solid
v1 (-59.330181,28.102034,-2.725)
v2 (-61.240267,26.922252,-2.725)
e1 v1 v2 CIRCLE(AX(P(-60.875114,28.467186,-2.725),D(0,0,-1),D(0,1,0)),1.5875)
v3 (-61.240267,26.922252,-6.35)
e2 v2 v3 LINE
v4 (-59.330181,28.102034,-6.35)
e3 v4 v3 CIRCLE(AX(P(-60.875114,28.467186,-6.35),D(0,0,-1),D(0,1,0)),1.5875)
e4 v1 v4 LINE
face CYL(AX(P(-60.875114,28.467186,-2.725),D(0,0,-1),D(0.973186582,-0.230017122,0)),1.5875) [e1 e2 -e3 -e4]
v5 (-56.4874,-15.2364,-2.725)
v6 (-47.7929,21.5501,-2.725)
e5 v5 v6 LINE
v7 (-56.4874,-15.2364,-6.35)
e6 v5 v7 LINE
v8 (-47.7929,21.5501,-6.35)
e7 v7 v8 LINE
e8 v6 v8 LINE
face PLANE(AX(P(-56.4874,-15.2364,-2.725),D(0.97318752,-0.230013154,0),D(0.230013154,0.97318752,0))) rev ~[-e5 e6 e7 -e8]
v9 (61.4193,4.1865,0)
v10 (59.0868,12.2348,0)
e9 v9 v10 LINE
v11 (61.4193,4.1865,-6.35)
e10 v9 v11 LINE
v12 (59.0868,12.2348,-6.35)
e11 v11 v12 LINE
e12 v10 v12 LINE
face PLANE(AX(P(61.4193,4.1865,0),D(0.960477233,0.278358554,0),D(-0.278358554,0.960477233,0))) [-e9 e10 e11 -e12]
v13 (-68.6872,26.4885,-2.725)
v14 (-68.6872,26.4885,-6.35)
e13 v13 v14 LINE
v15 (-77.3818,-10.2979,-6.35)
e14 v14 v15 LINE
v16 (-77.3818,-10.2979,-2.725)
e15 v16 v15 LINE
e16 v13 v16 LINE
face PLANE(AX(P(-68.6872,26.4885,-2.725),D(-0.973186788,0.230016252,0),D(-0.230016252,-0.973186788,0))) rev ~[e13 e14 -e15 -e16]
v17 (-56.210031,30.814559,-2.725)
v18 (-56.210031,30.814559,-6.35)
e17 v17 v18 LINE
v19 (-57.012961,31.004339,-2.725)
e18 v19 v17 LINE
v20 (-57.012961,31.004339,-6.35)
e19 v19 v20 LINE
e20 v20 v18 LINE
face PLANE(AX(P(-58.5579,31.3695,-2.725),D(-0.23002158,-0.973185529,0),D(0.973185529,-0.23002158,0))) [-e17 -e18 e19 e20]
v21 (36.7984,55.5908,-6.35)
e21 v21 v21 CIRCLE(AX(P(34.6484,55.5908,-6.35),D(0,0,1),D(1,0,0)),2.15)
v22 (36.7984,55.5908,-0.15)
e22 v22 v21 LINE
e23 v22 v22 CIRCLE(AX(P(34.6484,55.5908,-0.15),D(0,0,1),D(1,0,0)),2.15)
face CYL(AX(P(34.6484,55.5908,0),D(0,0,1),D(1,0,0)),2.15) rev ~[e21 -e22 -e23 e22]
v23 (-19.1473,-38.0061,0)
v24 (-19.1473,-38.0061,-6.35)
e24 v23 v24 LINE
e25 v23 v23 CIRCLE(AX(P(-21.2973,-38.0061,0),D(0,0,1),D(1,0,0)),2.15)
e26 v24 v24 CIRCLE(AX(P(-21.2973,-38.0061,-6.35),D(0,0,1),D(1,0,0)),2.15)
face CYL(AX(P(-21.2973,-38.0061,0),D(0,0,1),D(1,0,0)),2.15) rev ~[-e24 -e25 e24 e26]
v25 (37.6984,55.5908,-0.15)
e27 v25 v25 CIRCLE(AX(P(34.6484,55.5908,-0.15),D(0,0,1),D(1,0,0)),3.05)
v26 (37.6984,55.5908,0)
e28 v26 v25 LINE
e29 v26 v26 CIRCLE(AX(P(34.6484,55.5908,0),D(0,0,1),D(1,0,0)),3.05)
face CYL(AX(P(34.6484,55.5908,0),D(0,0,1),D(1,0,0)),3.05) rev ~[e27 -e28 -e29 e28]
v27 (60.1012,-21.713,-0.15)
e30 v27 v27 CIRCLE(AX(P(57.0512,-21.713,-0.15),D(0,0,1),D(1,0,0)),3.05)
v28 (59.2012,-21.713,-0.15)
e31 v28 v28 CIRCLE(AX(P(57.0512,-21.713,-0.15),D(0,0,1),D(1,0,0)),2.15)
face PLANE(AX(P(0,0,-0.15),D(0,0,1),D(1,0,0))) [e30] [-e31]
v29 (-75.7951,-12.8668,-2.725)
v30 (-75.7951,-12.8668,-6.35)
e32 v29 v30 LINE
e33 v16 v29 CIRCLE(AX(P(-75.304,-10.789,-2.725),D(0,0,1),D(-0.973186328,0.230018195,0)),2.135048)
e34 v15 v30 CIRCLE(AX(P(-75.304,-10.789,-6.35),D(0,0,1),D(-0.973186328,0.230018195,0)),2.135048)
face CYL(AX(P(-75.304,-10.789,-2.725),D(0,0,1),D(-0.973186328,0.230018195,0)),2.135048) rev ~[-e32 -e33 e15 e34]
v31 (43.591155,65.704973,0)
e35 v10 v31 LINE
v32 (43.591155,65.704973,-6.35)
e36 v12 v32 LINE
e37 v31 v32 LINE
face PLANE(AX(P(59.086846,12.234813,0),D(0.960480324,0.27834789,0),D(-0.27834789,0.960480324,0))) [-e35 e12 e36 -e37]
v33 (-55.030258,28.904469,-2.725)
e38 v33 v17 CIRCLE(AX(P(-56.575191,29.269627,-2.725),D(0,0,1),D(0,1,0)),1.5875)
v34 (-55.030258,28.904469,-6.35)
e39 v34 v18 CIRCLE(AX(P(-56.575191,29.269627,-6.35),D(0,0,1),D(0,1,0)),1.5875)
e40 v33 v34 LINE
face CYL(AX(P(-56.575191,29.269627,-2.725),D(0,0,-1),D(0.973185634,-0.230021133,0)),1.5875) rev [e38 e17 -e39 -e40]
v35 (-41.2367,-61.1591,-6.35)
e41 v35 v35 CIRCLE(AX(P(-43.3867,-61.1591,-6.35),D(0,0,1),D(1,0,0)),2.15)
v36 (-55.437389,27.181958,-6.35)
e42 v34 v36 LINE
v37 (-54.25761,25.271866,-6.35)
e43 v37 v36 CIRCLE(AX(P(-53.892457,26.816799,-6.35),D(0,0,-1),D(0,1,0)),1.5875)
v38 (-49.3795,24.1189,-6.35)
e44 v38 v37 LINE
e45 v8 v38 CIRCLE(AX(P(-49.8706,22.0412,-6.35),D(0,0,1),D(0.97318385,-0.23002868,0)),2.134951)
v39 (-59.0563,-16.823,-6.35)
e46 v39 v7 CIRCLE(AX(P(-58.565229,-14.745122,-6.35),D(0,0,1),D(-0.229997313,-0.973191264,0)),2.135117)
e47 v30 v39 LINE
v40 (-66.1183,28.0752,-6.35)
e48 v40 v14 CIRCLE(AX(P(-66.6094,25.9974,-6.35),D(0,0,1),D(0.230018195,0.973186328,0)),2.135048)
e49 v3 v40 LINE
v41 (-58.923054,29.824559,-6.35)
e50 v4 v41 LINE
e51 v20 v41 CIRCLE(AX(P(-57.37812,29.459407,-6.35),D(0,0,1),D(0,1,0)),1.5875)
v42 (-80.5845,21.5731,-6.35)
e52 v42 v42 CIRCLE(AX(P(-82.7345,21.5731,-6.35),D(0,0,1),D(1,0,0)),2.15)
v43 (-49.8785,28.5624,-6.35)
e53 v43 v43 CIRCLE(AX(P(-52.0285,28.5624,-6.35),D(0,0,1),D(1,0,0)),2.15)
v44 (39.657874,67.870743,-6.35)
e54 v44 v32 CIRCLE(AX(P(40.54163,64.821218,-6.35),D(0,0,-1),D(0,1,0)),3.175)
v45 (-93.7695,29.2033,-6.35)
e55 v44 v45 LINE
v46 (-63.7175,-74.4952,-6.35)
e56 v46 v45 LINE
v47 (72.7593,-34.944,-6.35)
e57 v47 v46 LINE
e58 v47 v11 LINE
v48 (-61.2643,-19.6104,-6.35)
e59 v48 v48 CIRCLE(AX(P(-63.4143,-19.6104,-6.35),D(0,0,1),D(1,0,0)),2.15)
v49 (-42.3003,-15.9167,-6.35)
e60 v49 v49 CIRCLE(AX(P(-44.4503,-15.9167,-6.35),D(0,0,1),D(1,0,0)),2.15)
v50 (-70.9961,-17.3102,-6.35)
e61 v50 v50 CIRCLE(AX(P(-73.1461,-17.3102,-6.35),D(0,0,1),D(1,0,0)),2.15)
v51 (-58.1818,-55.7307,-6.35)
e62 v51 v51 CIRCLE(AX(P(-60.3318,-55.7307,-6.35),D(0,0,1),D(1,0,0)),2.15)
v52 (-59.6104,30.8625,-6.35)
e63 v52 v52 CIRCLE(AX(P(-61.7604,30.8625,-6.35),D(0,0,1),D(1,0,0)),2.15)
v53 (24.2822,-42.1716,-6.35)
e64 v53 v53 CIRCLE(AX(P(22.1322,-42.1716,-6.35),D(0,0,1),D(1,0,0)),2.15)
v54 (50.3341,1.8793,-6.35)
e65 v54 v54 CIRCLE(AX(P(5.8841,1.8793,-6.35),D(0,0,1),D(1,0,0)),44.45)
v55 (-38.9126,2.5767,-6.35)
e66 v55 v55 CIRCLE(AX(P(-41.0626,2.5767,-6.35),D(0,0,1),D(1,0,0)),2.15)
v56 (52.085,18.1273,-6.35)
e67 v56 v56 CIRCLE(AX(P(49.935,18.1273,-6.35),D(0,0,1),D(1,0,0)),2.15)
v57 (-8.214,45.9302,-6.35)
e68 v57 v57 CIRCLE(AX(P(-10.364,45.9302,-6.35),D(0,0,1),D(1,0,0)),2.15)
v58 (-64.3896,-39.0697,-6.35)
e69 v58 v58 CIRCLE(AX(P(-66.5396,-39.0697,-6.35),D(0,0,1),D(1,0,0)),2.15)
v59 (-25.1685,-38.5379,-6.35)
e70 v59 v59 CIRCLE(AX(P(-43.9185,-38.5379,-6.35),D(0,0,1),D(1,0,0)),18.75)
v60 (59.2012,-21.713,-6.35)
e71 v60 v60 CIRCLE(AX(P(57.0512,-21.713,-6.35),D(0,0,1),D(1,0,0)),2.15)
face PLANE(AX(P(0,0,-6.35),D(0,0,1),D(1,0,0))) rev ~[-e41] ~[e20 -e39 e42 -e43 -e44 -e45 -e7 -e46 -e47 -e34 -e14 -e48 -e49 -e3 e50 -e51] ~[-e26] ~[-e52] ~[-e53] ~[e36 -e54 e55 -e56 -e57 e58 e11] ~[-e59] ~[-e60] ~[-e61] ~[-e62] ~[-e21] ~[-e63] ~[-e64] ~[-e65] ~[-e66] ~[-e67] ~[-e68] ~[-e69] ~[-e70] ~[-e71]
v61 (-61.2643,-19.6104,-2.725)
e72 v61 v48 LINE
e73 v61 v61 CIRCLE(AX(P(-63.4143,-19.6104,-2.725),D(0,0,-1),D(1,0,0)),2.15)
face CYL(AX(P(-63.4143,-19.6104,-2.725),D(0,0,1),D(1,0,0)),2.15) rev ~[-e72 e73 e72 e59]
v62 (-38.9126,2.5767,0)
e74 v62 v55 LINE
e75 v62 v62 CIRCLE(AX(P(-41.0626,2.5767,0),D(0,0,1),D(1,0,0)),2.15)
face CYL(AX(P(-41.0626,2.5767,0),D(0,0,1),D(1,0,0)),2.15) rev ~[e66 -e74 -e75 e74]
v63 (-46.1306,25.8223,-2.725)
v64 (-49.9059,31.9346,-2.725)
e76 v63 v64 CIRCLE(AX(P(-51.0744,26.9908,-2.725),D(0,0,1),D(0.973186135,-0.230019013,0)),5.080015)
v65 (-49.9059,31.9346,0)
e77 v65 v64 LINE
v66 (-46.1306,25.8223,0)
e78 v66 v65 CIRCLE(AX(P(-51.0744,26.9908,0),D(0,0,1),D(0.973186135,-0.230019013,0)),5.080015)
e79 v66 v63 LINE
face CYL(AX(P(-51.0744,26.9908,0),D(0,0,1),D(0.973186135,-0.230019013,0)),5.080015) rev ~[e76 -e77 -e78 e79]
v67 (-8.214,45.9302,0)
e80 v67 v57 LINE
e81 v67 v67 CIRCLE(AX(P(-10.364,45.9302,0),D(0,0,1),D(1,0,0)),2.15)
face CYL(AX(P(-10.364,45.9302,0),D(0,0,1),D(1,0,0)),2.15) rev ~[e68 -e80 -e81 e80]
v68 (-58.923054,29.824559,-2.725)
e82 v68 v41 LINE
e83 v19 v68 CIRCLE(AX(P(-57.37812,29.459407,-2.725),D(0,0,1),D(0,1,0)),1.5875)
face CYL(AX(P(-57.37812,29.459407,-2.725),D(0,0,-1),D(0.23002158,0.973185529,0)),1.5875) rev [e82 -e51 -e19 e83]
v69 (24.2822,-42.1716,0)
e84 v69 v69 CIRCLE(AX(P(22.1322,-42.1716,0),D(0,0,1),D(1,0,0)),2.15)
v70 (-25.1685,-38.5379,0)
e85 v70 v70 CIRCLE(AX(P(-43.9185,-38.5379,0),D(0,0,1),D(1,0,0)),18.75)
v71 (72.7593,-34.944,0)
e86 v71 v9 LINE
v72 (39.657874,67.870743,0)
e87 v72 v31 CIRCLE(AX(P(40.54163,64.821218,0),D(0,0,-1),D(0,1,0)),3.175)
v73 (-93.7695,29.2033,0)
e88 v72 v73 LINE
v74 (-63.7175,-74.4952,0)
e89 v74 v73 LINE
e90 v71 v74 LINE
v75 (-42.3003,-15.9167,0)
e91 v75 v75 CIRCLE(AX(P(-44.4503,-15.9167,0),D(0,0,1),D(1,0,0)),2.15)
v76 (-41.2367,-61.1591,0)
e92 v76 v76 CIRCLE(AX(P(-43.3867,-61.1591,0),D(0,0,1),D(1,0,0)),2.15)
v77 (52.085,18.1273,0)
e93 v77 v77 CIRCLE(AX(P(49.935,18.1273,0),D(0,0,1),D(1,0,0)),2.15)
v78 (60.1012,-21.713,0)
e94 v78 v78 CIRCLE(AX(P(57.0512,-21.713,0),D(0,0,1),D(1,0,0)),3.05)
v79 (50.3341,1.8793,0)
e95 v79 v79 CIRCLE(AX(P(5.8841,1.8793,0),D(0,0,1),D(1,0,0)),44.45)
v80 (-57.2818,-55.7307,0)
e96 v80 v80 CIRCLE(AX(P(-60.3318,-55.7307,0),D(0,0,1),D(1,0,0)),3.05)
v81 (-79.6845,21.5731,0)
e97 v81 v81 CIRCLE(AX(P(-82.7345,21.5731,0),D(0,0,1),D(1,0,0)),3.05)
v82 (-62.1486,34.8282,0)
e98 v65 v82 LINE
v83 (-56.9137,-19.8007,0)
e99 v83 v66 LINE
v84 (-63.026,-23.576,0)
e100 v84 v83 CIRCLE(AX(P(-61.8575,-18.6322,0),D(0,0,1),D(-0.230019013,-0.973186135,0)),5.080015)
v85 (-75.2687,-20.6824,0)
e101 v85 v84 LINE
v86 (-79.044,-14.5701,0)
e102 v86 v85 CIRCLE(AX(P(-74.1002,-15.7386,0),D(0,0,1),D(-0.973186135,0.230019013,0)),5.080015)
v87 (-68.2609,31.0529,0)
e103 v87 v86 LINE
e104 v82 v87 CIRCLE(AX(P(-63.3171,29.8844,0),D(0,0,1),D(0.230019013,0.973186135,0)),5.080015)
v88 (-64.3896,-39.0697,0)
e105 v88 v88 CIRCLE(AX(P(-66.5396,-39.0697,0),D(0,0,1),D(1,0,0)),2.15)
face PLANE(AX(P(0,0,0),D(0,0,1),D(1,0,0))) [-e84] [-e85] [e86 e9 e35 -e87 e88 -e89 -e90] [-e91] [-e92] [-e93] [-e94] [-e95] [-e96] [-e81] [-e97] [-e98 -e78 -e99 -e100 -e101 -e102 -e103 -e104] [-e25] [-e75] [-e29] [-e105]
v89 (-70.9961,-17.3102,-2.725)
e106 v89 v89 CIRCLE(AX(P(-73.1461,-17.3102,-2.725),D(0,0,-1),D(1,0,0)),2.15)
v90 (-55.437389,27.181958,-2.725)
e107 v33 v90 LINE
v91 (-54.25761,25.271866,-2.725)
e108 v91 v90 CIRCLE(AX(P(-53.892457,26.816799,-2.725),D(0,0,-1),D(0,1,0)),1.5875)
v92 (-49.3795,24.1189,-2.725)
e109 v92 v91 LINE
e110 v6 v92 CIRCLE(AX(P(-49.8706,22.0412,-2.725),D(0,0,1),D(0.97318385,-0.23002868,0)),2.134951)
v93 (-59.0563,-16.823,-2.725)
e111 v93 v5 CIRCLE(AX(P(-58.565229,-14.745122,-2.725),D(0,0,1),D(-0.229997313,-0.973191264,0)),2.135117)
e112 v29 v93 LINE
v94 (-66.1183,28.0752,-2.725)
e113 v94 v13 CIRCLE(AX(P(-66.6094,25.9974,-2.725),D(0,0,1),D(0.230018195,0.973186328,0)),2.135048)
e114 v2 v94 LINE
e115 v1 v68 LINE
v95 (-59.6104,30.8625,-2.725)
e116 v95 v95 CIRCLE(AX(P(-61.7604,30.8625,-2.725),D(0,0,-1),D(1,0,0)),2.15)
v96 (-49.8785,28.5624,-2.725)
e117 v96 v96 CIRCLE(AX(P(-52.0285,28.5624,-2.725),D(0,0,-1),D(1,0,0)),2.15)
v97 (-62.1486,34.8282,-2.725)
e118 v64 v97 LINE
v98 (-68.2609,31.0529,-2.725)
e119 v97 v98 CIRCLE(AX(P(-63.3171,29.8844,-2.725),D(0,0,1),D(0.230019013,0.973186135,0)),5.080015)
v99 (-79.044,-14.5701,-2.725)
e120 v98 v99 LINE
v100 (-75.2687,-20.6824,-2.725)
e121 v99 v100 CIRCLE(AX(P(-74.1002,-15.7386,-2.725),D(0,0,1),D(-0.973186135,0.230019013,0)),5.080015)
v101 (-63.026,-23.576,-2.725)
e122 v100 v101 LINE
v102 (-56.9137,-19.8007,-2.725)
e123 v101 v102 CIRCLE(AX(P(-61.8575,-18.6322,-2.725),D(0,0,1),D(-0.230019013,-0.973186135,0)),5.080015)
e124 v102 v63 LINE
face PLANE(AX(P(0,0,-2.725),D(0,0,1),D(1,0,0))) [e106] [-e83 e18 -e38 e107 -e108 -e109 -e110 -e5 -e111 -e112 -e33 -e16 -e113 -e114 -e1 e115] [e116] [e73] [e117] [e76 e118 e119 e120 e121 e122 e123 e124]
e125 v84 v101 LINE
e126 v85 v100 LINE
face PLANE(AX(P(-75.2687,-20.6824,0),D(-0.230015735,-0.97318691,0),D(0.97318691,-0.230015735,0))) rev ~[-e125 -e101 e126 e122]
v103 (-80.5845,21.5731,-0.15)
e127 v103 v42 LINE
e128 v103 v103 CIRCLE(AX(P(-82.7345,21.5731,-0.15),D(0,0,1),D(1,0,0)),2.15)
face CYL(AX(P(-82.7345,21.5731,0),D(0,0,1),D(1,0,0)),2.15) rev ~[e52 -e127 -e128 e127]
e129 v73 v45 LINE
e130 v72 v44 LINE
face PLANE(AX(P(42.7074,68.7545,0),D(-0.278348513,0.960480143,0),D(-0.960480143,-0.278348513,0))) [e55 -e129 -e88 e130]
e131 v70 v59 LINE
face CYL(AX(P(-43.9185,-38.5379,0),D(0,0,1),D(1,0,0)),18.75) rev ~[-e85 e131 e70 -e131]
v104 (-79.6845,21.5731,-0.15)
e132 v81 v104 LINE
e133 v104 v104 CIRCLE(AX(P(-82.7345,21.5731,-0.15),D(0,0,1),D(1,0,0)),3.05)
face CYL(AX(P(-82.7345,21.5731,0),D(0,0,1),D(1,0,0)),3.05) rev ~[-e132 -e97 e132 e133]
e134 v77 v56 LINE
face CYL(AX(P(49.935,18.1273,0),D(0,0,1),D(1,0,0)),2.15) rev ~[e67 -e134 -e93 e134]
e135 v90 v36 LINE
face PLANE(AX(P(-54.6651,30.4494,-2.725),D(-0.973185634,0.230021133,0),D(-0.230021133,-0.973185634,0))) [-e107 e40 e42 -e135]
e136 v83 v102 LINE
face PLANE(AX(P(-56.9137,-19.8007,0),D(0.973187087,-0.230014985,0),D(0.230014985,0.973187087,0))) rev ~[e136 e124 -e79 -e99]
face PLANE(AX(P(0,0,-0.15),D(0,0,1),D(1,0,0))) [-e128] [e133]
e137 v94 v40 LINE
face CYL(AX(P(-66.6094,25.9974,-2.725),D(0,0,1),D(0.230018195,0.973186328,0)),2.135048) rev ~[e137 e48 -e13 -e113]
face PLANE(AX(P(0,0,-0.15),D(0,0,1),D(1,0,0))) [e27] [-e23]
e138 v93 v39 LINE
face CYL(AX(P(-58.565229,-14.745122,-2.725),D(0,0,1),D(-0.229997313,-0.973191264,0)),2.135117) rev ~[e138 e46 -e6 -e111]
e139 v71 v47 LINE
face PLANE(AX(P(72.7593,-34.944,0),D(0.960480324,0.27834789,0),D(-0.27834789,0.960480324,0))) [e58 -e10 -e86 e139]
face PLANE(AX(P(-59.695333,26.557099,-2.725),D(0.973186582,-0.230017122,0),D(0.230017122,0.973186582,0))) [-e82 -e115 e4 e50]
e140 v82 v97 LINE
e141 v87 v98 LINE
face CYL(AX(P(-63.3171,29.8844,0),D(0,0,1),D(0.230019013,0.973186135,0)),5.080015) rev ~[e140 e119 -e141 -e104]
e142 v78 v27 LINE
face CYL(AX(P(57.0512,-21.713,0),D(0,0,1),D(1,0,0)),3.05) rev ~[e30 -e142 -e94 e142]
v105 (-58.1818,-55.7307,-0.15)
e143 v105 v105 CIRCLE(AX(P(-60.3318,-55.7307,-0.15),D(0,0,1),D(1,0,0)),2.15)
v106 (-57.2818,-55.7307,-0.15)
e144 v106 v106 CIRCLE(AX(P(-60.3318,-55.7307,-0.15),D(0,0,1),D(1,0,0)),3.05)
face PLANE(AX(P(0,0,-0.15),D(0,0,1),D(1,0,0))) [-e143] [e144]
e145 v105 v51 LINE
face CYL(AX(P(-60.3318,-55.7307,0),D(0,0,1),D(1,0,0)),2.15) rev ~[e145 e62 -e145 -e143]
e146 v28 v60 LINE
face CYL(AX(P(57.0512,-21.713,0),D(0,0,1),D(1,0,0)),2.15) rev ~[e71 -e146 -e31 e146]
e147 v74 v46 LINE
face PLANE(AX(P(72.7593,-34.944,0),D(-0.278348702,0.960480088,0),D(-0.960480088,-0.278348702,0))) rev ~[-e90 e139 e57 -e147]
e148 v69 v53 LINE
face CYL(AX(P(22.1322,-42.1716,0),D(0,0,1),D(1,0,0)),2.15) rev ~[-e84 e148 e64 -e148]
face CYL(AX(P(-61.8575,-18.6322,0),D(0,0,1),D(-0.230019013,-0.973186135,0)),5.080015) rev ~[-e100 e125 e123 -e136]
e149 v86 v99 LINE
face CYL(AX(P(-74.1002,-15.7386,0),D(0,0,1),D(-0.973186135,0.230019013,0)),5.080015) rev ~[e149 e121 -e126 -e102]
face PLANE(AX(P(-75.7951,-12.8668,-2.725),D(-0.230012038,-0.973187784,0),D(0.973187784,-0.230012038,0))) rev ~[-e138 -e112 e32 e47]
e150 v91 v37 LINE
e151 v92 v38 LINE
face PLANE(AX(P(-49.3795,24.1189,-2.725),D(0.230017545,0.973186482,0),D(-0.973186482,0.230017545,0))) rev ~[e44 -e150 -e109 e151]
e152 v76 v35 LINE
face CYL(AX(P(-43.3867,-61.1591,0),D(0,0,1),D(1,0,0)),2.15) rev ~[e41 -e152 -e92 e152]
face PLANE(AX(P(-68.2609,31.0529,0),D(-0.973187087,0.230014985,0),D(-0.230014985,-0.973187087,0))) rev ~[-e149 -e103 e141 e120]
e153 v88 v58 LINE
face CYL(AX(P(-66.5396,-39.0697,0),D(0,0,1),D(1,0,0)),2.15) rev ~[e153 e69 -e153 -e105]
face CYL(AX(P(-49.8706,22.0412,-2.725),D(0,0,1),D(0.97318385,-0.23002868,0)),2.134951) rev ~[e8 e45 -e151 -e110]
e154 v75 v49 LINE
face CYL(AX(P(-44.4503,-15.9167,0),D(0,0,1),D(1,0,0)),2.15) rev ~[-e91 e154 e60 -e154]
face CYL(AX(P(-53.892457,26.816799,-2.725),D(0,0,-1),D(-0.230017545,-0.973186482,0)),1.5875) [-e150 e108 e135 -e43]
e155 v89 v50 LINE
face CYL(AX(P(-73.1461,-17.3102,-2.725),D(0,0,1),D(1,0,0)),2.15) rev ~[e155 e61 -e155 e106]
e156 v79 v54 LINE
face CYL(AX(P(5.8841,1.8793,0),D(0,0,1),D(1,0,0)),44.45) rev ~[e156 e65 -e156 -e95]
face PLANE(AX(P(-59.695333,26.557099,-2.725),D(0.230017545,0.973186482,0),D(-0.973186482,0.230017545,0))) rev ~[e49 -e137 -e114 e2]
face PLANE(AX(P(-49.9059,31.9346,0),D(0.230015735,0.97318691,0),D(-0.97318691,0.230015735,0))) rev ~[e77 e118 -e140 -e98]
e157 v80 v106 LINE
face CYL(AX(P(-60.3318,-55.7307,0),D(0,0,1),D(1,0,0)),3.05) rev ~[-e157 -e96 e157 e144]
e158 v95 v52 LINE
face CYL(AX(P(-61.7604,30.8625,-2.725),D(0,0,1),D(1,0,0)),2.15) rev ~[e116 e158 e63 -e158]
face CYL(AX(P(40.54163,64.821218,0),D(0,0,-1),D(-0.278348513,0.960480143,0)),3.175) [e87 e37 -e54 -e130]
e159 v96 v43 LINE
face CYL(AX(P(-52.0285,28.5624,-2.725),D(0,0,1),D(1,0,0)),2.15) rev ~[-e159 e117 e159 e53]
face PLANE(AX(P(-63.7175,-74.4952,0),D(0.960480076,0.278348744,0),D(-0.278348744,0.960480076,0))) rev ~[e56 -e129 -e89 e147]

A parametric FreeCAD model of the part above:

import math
import FreeCAD as App
import Part
import Sketcher
from FreeCAD import Vector
Q = App.Units.Quantity


def edges_at(feature, points):
    """Names of the edges that pass closest to the given points."""
    edges = feature.Shape.Edges
    near = lambda p: min(range(len(edges)), key=lambda i: edges[i].distToShape(Part.Vertex(*p))[0])
    return sorted({f"Edge{near(p) + 1}" for p in points})

doc = App.newDocument("Part")
body = doc.addObject("PartDesign::Body", "Body")

# Sketch on XY plane
sketch1 = body.newObject("Sketcher::SketchObject", "Sketch")
sketch1.AttachmentSupport = (doc.getObject("XY_Plane"), [""])
sketch1.MapMode = "FlatFace"
sketch1.addGeometry([
    Part.LineSegment(Vector(-63.7, -74.5, 0), Vector(72.8, -34.9, 0)),  # 0
    Part.LineSegment(Vector(72.8, -34.9, 0), Vector(61.4, 4.2, 0)),  # 1
    Part.LineSegment(Vector(61.4, 4.2, 0), Vector(59.1, 12.2, 0)),  # 2
    Part.LineSegment(Vector(59.1, 12.2, 0), Vector(42.7, 68.8, 0)),  # 3
    Part.LineSegment(Vector(42.7, 68.8, 0), Vector(-93.8, 29.2, 0)),  # 4
    Part.LineSegment(Vector(-93.8, 29.2, 0), Vector(-63.7, -74.5, 0)),  # 5
    Part.Circle(Vector(-66.5, -39.1, 0), Vector(0, 0, 1), 2.1),  # 6
    Part.Circle(Vector(-43.4, -61.2, 0), Vector(0, 0, 1), 2.1),  # 7
    Part.Circle(Vector(-43.9, -38.5, 0), Vector(0, 0, 1), 18.8),  # 8
    Part.Circle(Vector(-21.3, -38, 0), Vector(0, 0, 1), 2.1),  # 9
    Part.Circle(Vector(-44.5, -15.9, 0), Vector(0, 0, 1), 2.1),  # 10
    Part.Circle(Vector(22.1, -42.2, 0), Vector(0, 0, 1), 2.1),  # 11
    Part.Circle(Vector(-41.1, 2.6, 0), Vector(0, 0, 1), 2.1),  # 12
    Part.Circle(Vector(5.9, 1.9, 0), Vector(0, 0, 1), 44.5),  # 13
    Part.Circle(Vector(49.9, 18.1, 0), Vector(0, 0, 1), 2.1),  # 14
    Part.Circle(Vector(-10.4, 45.9, 0), Vector(0, 0, 1), 2.1),  # 15
], False)
sketch1.addConstraint([
    Sketcher.Constraint("Coincident", 0, 2, 1, 1),
    Sketcher.Constraint("Coincident", 1, 2, 2, 1),
    Sketcher.Constraint("Coincident", 2, 2, 3, 1),
    Sketcher.Constraint("Coincident", 3, 2, 4, 1),
    Sketcher.Constraint("Coincident", 4, 2, 5, 1),
    Sketcher.Constraint("Coincident", 5, 2, 0, 1),
    Sketcher.Constraint("Equal", 6, 7),
    Sketcher.Constraint("Equal", 7, 9),
    Sketcher.Constraint("Equal", 9, 10),
    Sketcher.Constraint("Equal", 10, 11),
    Sketcher.Constraint("Equal", 11, 12),
    Sketcher.Constraint("Equal", 12, 14),
    Sketcher.Constraint("Equal", 14, 15),
    Sketcher.Constraint("Perpendicular", 0, 1),
    Sketcher.Constraint("Parallel", 1, 2),
    Sketcher.Constraint("Parallel", 2, 3),
    Sketcher.Constraint("Perpendicular", 3, 4),
    Sketcher.Constraint("Perpendicular", 4, 5),
    Sketcher.Constraint("Diameter", 6, Q("4.3 mm")),
    Sketcher.Constraint("Diameter", 8, Q("37.5 mm")),
    Sketcher.Constraint("Diameter", 13, Q("88.9 mm")),
    Sketcher.Constraint("DistanceX", 1, 2, 0, 2, Q("11.34 mm")),
    Sketcher.Constraint("DistanceY", 10, 3, 4, 2, Q("45.12 mm")),
    Sketcher.Constraint("DistanceX", 4, 2, 6, 3, Q("27.23 mm")),
    Sketcher.Constraint("DistanceY", 7, 3, -1, 1, Q("61.159 mm")),
    Sketcher.Constraint("DistanceY", 8, 3, -1, 1, Q("38.538 mm")),
    Sketcher.Constraint("DistanceY", 9, 3, -1, 1, Q("38.006 mm")),
    Sketcher.Constraint("DistanceX", -1, 1, 13, 3, Q("5.884 mm")),
    Sketcher.Constraint("DistanceX", -1, 1, 14, 3, Q("49.935 mm")),
    Sketcher.Constraint("DistanceX", 15, 3, -1, 1, Q("10.364 mm")),
    Sketcher.Constraint("DistanceY", 0, 2, -1, 1, Q("34.944 mm")),
    Sketcher.Constraint("DistanceX", 6, 3, 7, 3, Q("23.153 mm")),
    Sketcher.Constraint("DistanceX", 6, 3, 8, 3, Q("22.621 mm")),
    Sketcher.Constraint("DistanceY", 6, 3, 10, 3, Q("23.153 mm")),
    Sketcher.Constraint("DistanceX", 10, 3, 9, 3, Q("23.153 mm")),
    Sketcher.Constraint("DistanceX", 7, 3, 11, 3, Q("65.519 mm")),
    Sketcher.Constraint("DistanceY", 11, 3, 10, 3, Q("26.255 mm")),
    Sketcher.Constraint("DistanceX", 8, 3, 12, 3, Q("2.856 mm")),
    Sketcher.Constraint("DistanceX", 13, 3, 11, 3, Q("16.248 mm")),
    Sketcher.Constraint("DistanceY", 11, 3, 13, 3, Q("44.051 mm")),
    Sketcher.Constraint("DistanceY", 13, 3, 14, 3, Q("16.248 mm")),
    Sketcher.Constraint("DistanceY", 13, 3, 15, 3, Q("44.051 mm")),
    Sketcher.Constraint("DistanceX", 11, 3, 0, 2, Q("50.627 mm")),
    Sketcher.Constraint("DistanceY", 11, 3, 1, 2, Q("46.358 mm")),
    Sketcher.Constraint("DistanceY", 1, 2, 3, 2, Q("64.568 mm")),
    Sketcher.Constraint("Distance", 2, Q("8.3795 mm")),
    Sketcher.Constraint("DistanceX", 9, 3, -1, 1, Q("21.2973 mm")),
    Sketcher.Constraint("DistanceY", -1, 1, 12, 3, Q("2.5767 mm")),
])
pad1 = body.newObject("PartDesign::Pad", "Pad")
pad1.Profile = sketch1
pad1.Length = 6.35
pad1.Reversed = True

# Sketch on XY plane
sketch2 = body.newObject("Sketcher::SketchObject", "Sketch001")
sketch2.AttachmentSupport = (doc.getObject("XY_Plane"), [""])
sketch2.MapMode = "FlatFace"
sketch2.addGeometry([
    Part.LineSegment(Vector(-68, 31, 0), Vector(-79, -15, 0)),  # 0
    Part.ArcOfCircle(Part.Circle(Vector(-74, -16, 0), Vector(0, 0, 1), 5), math.radians(167), math.radians(257)),  # 1
    Part.LineSegment(Vector(-75, -21, 0), Vector(-63, -24, 0)),  # 2
    Part.ArcOfCircle(Part.Circle(Vector(-62, -19, 0), Vector(0, 0, 1), 5), math.radians(-103), math.radians(-13)),  # 3
    Part.LineSegment(Vector(-57, -20, 0), Vector(-46, 26, 0)),  # 4
    Part.ArcOfCircle(Part.Circle(Vector(-51, 27, 0), Vector(0, 0, 1), 5), math.radians(-13), math.radians(77)),  # 5
    Part.LineSegment(Vector(-50, 32, 0), Vector(-62, 35, 0)),  # 6
    Part.ArcOfCircle(Part.Circle(Vector(-63, 30, 0), Vector(0, 0, 1), 5), math.radians(77), math.radians(167)),  # 7
], False)
sketch2.addConstraint([
    Sketcher.Constraint("Tangent", 0, 2, 1, 1),
    Sketcher.Constraint("Tangent", 1, 2, 2, 1),
    Sketcher.Constraint("Tangent", 2, 2, 3, 1),
    Sketcher.Constraint("Tangent", 3, 2, 4, 1),
    Sketcher.Constraint("Tangent", 4, 2, 5, 1),
    Sketcher.Constraint("Tangent", 5, 2, 6, 1),
    Sketcher.Constraint("Tangent", 6, 2, 7, 1),
    Sketcher.Constraint("Tangent", 7, 2, 0, 1),
    Sketcher.Constraint("Equal", 1, 3),
    Sketcher.Constraint("Equal", 3, 5),
    Sketcher.Constraint("Equal", 5, 7),
    Sketcher.Constraint("Perpendicular", 0, 2),
    Sketcher.Constraint("Perpendicular", 2, 4),
    Sketcher.Constraint("Perpendicular", 4, 6),
    Sketcher.Constraint("Radius", 1, Q("5.08 mm")),
    Sketcher.Constraint("Distance", 0, Q("46.88 mm")),
    Sketcher.Constraint("Distance", 2, Q("12.58 mm")),
    Sketcher.Constraint("DistanceY", 0, 2, -1, 1, Q("14.57 mm")),
    Sketcher.Constraint("DistanceX", 7, 3, -1, 1, Q("63.317 mm")),
    Sketcher.Constraint("DistanceX", 0, 2, -1, 1, Q("79.044 mm")),
])
pocket1 = body.newObject("PartDesign::Pocket", "Pocket")
pocket1.Profile = sketch2
pocket1.Length = 2.725

# Sketch on XY plane
sketch3 = body.newObject("Sketcher::SketchObject", "Sketch002")
sketch3.AttachmentSupport = (doc.getObject("XY_Plane"), [""])
sketch3.MapMode = "FlatFace"
sketch3.AttachmentOffset = App.Placement(Vector(0, 0, -2.725), App.Rotation())
sketch3.addGeometry([
    Part.ArcOfCircle(Part.Circle(Vector(-66.6094, 25.9974, 0), Vector(0, 0, 1), 2.135048), math.radians(76.701857), math.radians(166.701857)),  # 0
    Part.LineSegment(Vector(-68.6872, 26.4885, 0), Vector(-77.3818, -10.2979, 0)),  # 1
    Part.ArcOfCircle(Part.Circle(Vector(-75.304, -10.789, 0), Vector(0, 0, 1), 2.135048), math.radians(166.701857), math.radians(256.701857)),  # 2
    Part.LineSegment(Vector(-75.7951, -12.8668, 0), Vector(-59.0563, -16.823, 0)),  # 3
    Part.ArcOfCircle(Part.Circle(Vector(-58.5652, -14.7453, 0), Vector(0, 0, 1), 2.134951), math.radians(-103.29876), math.radians(-13.298143)),  # 4
    Part.LineSegment(Vector(-56.4874, -15.2364, 0), Vector(-47.7929, 21.5501, 0)),  # 5
    Part.ArcOfCircle(Part.Circle(Vector(-49.8706, 22.0412, 0), Vector(0, 0, 1), 2.134951), math.radians(-13.29876), math.radians(76.70124)),  # 6
    Part.LineSegment(Vector(-49.3795, 24.1189, 0), Vector(-55.802549, 25.63702, 0)),  # 7
    Part.LineSegment(Vector(-55.802549, 25.63702, 0), Vector(-54.6651, 30.4494, 0)),  # 8
    Part.LineSegment(Vector(-54.6651, 30.4494, 0), Vector(-58.5579, 31.3695, 0)),  # 9
    Part.LineSegment(Vector(-58.5579, 31.3695, 0), Vector(-59.695333, 26.557099, 0)),  # 10
    Part.LineSegment(Vector(-59.695333, 26.557099, 0), Vector(-66.1183, 28.0752, 0)),  # 11
    Part.Circle(Vector(-63.4143, -19.6104, 0), Vector(0, 0, 1), 2.15),  # 12
    Part.Circle(Vector(-73.1461, -17.3102, 0), Vector(0, 0, 1), 2.15),  # 13
    Part.Circle(Vector(-61.7604, 30.8625, 0), Vector(0, 0, 1), 2.15),  # 14
    Part.Circle(Vector(-52.0285, 28.5624, 0), Vector(0, 0, 1), 2.15),  # 15
], False)
sketch3.addConstraint([
    Sketcher.Constraint("Coincident", 0, 2, 1, 1),
    Sketcher.Constraint("Coincident", 1, 2, 2, 1),
    Sketcher.Constraint("Coincident", 2, 2, 3, 1),
    Sketcher.Constraint("Coincident", 3, 2, 4, 1),
    Sketcher.Constraint("Coincident", 4, 2, 5, 1),
    Sketcher.Constraint("Coincident", 5, 2, 6, 1),
    Sketcher.Constraint("Coincident", 6, 2, 7, 1),
    Sketcher.Constraint("Coincident", 7, 2, 8, 1),
    Sketcher.Constraint("Coincident", 8, 2, 9, 1),
    Sketcher.Constraint("Coincident", 9, 2, 10, 1),
    Sketcher.Constraint("Coincident", 10, 2, 11, 1),
    Sketcher.Constraint("Coincident", 11, 2, 0, 1),
    Sketcher.Constraint("Diameter", 12, Q("4.3 mm")),
    Sketcher.Constraint("Diameter", 13, Q("4.3 mm")),
    Sketcher.Constraint("Diameter", 14, Q("4.3 mm")),
    Sketcher.Constraint("Diameter", 15, Q("4.3 mm")),
    Sketcher.Constraint("Distance", 9, Q("4 mm")),
    Sketcher.Constraint("Radius", 0, Q("2.135 mm")),
    Sketcher.Constraint("Radius", 2, Q("2.135 mm")),
    Sketcher.Constraint("Radius", 4, Q("2.135 mm")),
    Sketcher.Constraint("Radius", 6, Q("2.135 mm")),
    Sketcher.Constraint("Distance", 1, Q("37.8 mm")),
    Sketcher.Constraint("Distance", 3, Q("17.2 mm")),
    Sketcher.Constraint("Distance", 5, Q("37.8 mm")),
    Sketcher.Constraint("Distance", 7, Q("6.6 mm")),
    Sketcher.Constraint("Distance", 11, Q("6.6 mm")),
    Sketcher.Constraint("DistanceY", 15, 3, 14, 3, Q("2.3 mm")),
    Sketcher.Constraint("DistanceY", -1, 1, 5, 2, Q("21.55 mm")),
    Sketcher.Constraint("DistanceX", 2, 2, 4, 3, Q("17.23 mm")),
    Sketcher.Constraint("DistanceX", 0, 3, 6, 2, Q("17.23 mm")),
    Sketcher.Constraint("DistanceY", 8, 2, 9, 2, Q("0.92 mm")),
    Sketcher.Constraint("DistanceY", 7, 2, 10, 2, Q("0.92 mm")),
    Sketcher.Constraint("Distance", 8, Q("4.945 mm")),
    Sketcher.Constraint("Distance", 10, Q("4.945 mm")),
    Sketcher.Constraint("DistanceX", 2, 3, -1, 1, Q("75.304 mm")),
    Sketcher.Constraint("DistanceY", 2, 3, -1, 1, Q("10.789 mm")),
    Sketcher.Constraint("DistanceX", 13, 3, -1, 1, Q("73.146 mm")),
    Sketcher.Constraint("DistanceY", 1, 2, -1, 1, Q("10.298 mm")),
    Sketcher.Constraint("DistanceX", 2, 2, -1, 1, Q("75.795 mm")),
    Sketcher.Constraint("DistanceY", 3, 2, -1, 1, Q("16.823 mm")),
    Sketcher.Constraint("DistanceX", 5, 2, -1, 1, Q("47.793 mm")),
    Sketcher.Constraint("DistanceY", -1, 1, 6, 2, Q("24.119 mm")),
    Sketcher.Constraint("DistanceY", -1, 1, 7, 2, Q("25.637 mm")),
    Sketcher.Constraint("DistanceX", 8, 2, -1, 1, Q("54.665 mm")),
    Sketcher.Constraint("DistanceX", 12, 3, 4, 3, Q("4.849 mm")),
    Sketcher.Constraint("DistanceY", 12, 3, 4, 3, Q("4.865 mm")),
    Sketcher.Constraint("DistanceX", 0, 3, 12, 3, Q("3.195 mm")),
    Sketcher.Constraint("DistanceY", 13, 3, 4, 3, Q("2.565 mm")),
    Sketcher.Constraint("DistanceX", 0, 3, 14, 3, Q("4.849 mm")),
    Sketcher.Constraint("DistanceY", 0, 3, 14, 3, Q("4.865 mm")),
    Sketcher.Constraint("DistanceX", 15, 3, 6, 3, Q("2.158 mm")),
    Sketcher.Constraint("DistanceY", 0, 3, 0, 2, Q("0.491 mm")),
])
pocket2 = body.newObject("PartDesign::Pocket", "Pocket001")
pocket2.Profile = sketch3
pocket2.Type = "ThroughAll"
doc.recompute()

fillet = body.newObject("PartDesign::Fillet", "Fillet")
fillet.Base = (pocket2, edges_at(pocket2, [
    (-55.803, 25.637, -4.537),
    (-54.665, 30.449, -4.537),
    (-58.558, 31.369, -4.537),
    (-59.695, 26.557, -4.537),
]))
fillet.Radius = 1.5875
doc.recompute()

fillet2 = body.newObject("PartDesign::Fillet", "Fillet001")
fillet2.Base = (fillet, edges_at(fillet, [(42.707, 68.754, -3.175)]))
fillet2.Radius = 3.175

# Sketch on XY plane
sketch4 = body.newObject("Sketcher::SketchObject", "Sketch003")
sketch4.AttachmentSupport = (doc.getObject("XY_Plane"), [""])
sketch4.MapMode = "FlatFace"
sketch4.addGeometry([
    Part.Circle(Vector(57.1, -21.7, 0), Vector(0, 0, 1), 3),  # 0
    Part.Circle(Vector(57.1, -21.7, 0), Vector(0, 0, 1), 2.1),  # 1
    Part.Circle(Vector(34.6, 55.6, 0), Vector(0, 0, 1), 3),  # 2
    Part.Circle(Vector(34.6, 55.6, 0), Vector(0, 0, 1), 2.1),  # 3
    Part.Circle(Vector(-82.7, 21.6, 0), Vector(0, 0, 1), 3),  # 4
    Part.Circle(Vector(-82.7, 21.6, 0), Vector(0, 0, 1), 2.1),  # 5
    Part.Circle(Vector(-60.3, -55.7, 0), Vector(0, 0, 1), 3),  # 6
    Part.Circle(Vector(-60.3, -55.7, 0), Vector(0, 0, 1), 2.1),  # 7
], False)
sketch4.addConstraint([
    Sketcher.Constraint("Coincident", 1, 3, 0, 3),
    Sketcher.Constraint("Coincident", 3, 3, 2, 3),
    Sketcher.Constraint("Coincident", 5, 3, 4, 3),
    Sketcher.Constraint("Coincident", 7, 3, 6, 3),
    Sketcher.Constraint("Equal", 0, 2),
    Sketcher.Constraint("Equal", 1, 3),
    Sketcher.Constraint("Equal", 2, 4),
    Sketcher.Constraint("Equal", 3, 5),
    Sketcher.Constraint("Equal", 4, 6),
    Sketcher.Constraint("Equal", 5, 7),
    Sketcher.Constraint("Diameter", 0, Q("6.1 mm")),
    Sketcher.Constraint("Diameter", 1, Q("4.3 mm")),
    Sketcher.Constraint("DistanceY", 0, 3, -1, 1, Q("21.713 mm")),
    Sketcher.Constraint("DistanceY", -1, 1, 4, 3, Q("21.573 mm")),
    Sketcher.Constraint("DistanceX", 4, 3, 2, 3, Q("117.383 mm")),
    Sketcher.Constraint("DistanceX", 6, 3, 0, 3, Q("117.383 mm")),
    Sketcher.Constraint("DistanceX", -1, 1, 0, 3, Q("57.0512 mm")),
    Sketcher.Constraint("DistanceX", -1, 1, 2, 3, Q("34.6484 mm")),
    Sketcher.Constraint("DistanceY", -1, 1, 2, 3, Q("55.5908 mm")),
    Sketcher.Constraint("DistanceY", 6, 3, -1, 1, Q("55.7307 mm")),
])
pocket3 = body.newObject("PartDesign::Pocket", "Pocket002")
pocket3.Profile = sketch4
pocket3.Length = 0.15

# Sketch on XY plane
sketch5 = body.newObject("Sketcher::SketchObject", "Sketch004")
sketch5.AttachmentSupport = (doc.getObject("XY_Plane"), [""])
sketch5.MapMode = "FlatFace"
sketch5.addGeometry([
    Part.Circle(Vector(-82.7, 21.6, 0), Vector(0, 0, 1), 2.1),
    Part.Circle(Vector(34.6, 55.6, 0), Vector(0, 0, 1), 2.1),
    Part.Circle(Vector(57.1, -21.7, 0), Vector(0, 0, 1), 2.1),
    Part.Circle(Vector(-60.3, -55.7, 0), Vector(0, 0, 1), 2.1),
], False)
sketch5.addConstraint([
    Sketcher.Constraint("Equal", 0, 1),
    Sketcher.Constraint("Equal", 1, 2),
    Sketcher.Constraint("Equal", 2, 3),
    Sketcher.Constraint("Diameter", 0, Q("4.3 mm")),
    Sketcher.Constraint("DistanceY", -1, 1, 0, 3, Q("21.573 mm")),
    Sketcher.Constraint("DistanceY", 2, 3, -1, 1, Q("21.713 mm")),
    Sketcher.Constraint("DistanceX", 0, 3, 1, 3, Q("117.383 mm")),
    Sketcher.Constraint("DistanceX", 3, 3, 2, 3, Q("117.383 mm")),
    Sketcher.Constraint("DistanceX", 0, 3, -1, 1, Q("82.7345 mm")),
    Sketcher.Constraint("DistanceY", -1, 1, 1, 3, Q("55.5908 mm")),
    Sketcher.Constraint("DistanceX", -1, 1, 2, 3, Q("57.0512 mm")),
    Sketcher.Constraint("DistanceY", 3, 3, -1, 1, Q("55.7307 mm")),
])
pocket4 = body.newObject("PartDesign::Pocket", "Pocket003")
pocket4.Profile = sketch5
pocket4.Type = "ThroughAll"

doc.recompute()
